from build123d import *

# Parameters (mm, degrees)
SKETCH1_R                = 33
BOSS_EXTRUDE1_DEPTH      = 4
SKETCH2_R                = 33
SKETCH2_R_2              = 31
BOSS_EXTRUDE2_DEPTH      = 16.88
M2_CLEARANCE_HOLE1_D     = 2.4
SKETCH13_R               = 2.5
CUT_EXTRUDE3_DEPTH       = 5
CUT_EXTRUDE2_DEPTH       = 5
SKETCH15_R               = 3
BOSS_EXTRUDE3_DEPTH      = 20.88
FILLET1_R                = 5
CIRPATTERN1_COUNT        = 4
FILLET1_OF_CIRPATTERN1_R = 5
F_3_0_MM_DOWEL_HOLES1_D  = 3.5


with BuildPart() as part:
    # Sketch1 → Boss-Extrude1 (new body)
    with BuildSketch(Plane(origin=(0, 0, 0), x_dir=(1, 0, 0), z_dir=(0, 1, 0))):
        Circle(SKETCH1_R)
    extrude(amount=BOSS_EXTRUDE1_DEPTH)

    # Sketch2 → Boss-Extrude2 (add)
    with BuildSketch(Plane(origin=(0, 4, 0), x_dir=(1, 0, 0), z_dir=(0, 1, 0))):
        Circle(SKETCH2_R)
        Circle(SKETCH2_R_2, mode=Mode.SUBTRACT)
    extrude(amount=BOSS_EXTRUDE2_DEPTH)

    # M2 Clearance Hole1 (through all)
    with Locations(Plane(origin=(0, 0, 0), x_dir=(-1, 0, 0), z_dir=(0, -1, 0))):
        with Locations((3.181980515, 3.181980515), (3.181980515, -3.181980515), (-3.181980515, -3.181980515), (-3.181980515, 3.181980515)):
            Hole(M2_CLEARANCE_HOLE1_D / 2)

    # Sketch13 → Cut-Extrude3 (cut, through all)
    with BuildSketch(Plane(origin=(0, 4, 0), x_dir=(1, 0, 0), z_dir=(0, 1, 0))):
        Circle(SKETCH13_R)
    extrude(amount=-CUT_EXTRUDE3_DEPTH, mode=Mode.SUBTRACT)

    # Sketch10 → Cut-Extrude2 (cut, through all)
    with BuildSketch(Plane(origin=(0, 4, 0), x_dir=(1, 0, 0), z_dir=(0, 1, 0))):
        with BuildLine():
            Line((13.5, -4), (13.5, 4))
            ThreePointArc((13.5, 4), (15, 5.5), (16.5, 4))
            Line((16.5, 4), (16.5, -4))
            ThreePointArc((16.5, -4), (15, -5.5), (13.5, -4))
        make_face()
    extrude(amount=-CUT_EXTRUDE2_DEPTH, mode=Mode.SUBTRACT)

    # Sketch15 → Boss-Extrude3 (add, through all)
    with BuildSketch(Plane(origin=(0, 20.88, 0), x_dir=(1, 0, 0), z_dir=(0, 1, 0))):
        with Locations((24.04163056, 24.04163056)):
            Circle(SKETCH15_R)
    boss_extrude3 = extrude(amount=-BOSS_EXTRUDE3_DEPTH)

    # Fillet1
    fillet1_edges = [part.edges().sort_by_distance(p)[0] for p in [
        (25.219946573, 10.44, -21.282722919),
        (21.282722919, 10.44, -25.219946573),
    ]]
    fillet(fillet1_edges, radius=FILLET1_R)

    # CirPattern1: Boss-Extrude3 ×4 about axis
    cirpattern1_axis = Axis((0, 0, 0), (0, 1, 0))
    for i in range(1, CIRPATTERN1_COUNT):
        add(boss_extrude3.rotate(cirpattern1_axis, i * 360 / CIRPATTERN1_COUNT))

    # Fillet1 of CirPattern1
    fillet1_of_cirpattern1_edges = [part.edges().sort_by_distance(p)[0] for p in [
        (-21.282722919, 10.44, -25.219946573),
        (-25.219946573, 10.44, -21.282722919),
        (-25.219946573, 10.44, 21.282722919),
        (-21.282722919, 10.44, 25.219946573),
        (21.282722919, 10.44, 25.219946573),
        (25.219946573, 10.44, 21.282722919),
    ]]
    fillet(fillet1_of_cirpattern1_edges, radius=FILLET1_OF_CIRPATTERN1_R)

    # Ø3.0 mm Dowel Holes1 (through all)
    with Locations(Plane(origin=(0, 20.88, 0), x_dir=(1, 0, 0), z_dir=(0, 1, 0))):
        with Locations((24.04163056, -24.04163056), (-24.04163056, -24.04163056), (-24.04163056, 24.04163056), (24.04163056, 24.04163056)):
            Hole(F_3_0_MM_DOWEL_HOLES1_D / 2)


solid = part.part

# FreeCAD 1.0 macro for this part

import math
import FreeCAD as App
import Part
import Sketcher
from FreeCAD import Vector
Q = App.Units.Quantity


def edges_at(feature, points):
    """Names of the edges that pass closest to the given points."""
    edges = feature.Shape.Edges
    near = lambda p: min(range(len(edges)), key=lambda i: edges[i].distToShape(Part.Vertex(*p))[0])
    return sorted({f"Edge{near(p) + 1}" for p in points})

doc = App.newDocument("Part")
params = doc.addObject("Spreadsheet::Sheet", "Params")
for row, (alias, value) in enumerate([
    ("sketch1_diameter", "66 mm"),
    ("pad1_length", "4 mm"),
    ("sketch2_diameter", "66 mm"),
    ("sketch2_diameter2", "62 mm"),
    ("pad2_length", "16.88 mm"),
    ("sketch3_diameter", "2.4 mm"),
    ("hole_diameter", "2.4 mm"),
    ("sketch4_diameter", "5 mm"),
    ("sketch5_radius", "1.5 mm"),
    ("sketch5_height", "8 mm"),
    ("sketch6_diameter", "6 mm"),
    ("pad3_length", "20.88 mm"),
    ("fillet_radius", "5 mm"),
    ("fillet2_radius", "5 mm"),
    ("sketch7_diameter", "3.5 mm"),
    ("hole2_diameter", "3.5 mm"),
], start=1):
    params.set(f"A{row}", alias)
    params.set(f"B{row}", "=" + value)
    params.setAlias(f"B{row}", alias)

body = doc.addObject("PartDesign::Body", "Body")

sketch1 = body.newObject("Sketcher::SketchObject", "Sketch")
sketch1.AttachmentSupport = (doc.getObject("XZ_Plane"), [""])
sketch1.MapMode = "FlatFace"
sketch1.addGeometry(Part.Circle(Vector(0, 0, 0), Vector(0, 0, 1), 33), False)
sketch1.addConstraint(Sketcher.Constraint("Coincident", 0, 3, -1, 1))
sketch1.addConstraint(Sketcher.Constraint("Diameter", 0, Q("66 mm")))
sketch1.setExpression("Constraints[1]", "Params.sketch1_diameter")
pad1 = body.newObject("PartDesign::Pad", "Pad")
pad1.Profile = sketch1
pad1.setExpression("Length", "Params.pad1_length")
pad1.Reversed = True

sketch2 = body.newObject("Sketcher::SketchObject", "Sketch001")
sketch2.AttachmentSupport = (doc.getObject("XZ_Plane"), [""])
sketch2.MapMode = "FlatFace"
sketch2.AttachmentOffset = App.Placement(Vector(0, 0, -4), App.Rotation())
sketch2.addGeometry(Part.Circle(Vector(0, 0, 0), Vector(0, 0, 1), 33), False)
sketch2.addGeometry(Part.Circle(Vector(0, 0, 0), Vector(0, 0, 1), 31), False)
sketch2.addConstraint(Sketcher.Constraint("Coincident", 0, 3, -1, 1))
sketch2.addConstraint(Sketcher.Constraint("Coincident", 1, 3, -1, 1))
sketch2.addConstraint(Sketcher.Constraint("Diameter", 0, Q("66 mm")))
sketch2.addConstraint(Sketcher.Constraint("Diameter", 1, Q("62 mm")))
sketch2.setExpression("Constraints[2]", "Params.sketch2_diameter")
sketch2.setExpression("Constraints[3]", "Params.sketch2_diameter2")
pad2 = body.newObject("PartDesign::Pad", "Pad001")
pad2.Profile = sketch2
pad2.setExpression("Length", "Params.pad2_length")
pad2.Reversed = True

sketch3 = body.newObject("Sketcher::SketchObject", "Sketch002")
sketch3.AttachmentSupport = (doc.getObject("XZ_Plane"), [""])
sketch3.MapMode = "FlatFace"
sketch3.addGeometry(Part.Circle(Vector(-3.2, -3.2, 0), Vector(0, 0, 1), 1.2), False)
sketch3.addGeometry(Part.Circle(Vector(-3.2, 3.2, 0), Vector(0, 0, 1), 1.2), False)
sketch3.addGeometry(Part.Circle(Vector(3.2, 3.2, 0), Vector(0, 0, 1), 1.2), False)
sketch3.addGeometry(Part.Circle(Vector(3.2, -3.2, 0), Vector(0, 0, 1), 1.2), False)
sketch3.addConstraint(Sketcher.Constraint("Equal", 0, 1))
sketch3.addConstraint(Sketcher.Constraint("Equal", 1, 2))
sketch3.addConstraint(Sketcher.Constraint("Equal", 2, 3))
sketch3.addConstraint(Sketcher.Constraint("Symmetric", 0, 3, 2, 3, -1, 1))
sketch3.addConstraint(Sketcher.Constraint("Symmetric", 1, 3, 3, 3, -1, 1))
sketch3.addConstraint(Sketcher.Constraint("Symmetric", 1, 3, 2, 3, -2))
sketch3.addConstraint(Sketcher.Constraint("Diameter", 0, Q("2.4 mm")))
sketch3.addConstraint(Sketcher.Constraint("DistanceX", 0, 3, -1, 1, Q("3.181981 mm")))
sketch3.addConstraint(Sketcher.Constraint("DistanceY", 0, 3, -1, 1, Q("3.181981 mm")))
sketch3.setExpression("Constraints[6]", "Params.sketch3_diameter")
doc.recompute()
hole = body.newObject("PartDesign::Hole", "Hole")
hole.Profile = sketch3
hole.ThreadType = "None"
hole.setExpression("Diameter", "Params.hole_diameter")
hole.DepthType = "ThroughAll"

sketch4 = body.newObject("Sketcher::SketchObject", "Sketch003")
sketch4.AttachmentSupport = (doc.getObject("XZ_Plane"), [""])
sketch4.MapMode = "FlatFace"
sketch4.AttachmentOffset = App.Placement(Vector(0, 0, -4), App.Rotation())
sketch4.addGeometry(Part.Circle(Vector(0, 0, 0), Vector(0, 0, 1), 2.5), False)
sketch4.addConstraint(Sketcher.Constraint("Coincident", 0, 3, -1, 1))
sketch4.addConstraint(Sketcher.Constraint("Diameter", 0, Q("5 mm")))
sketch4.setExpression("Constraints[1]", "Params.sketch4_diameter")
pocket1 = body.newObject("PartDesign::Pocket", "Pocket")
pocket1.Profile = sketch4
pocket1.Type = "ThroughAll"
pocket1.Reversed = True

sketch5 = body.newObject("Sketcher::SketchObject", "Sketch004")
sketch5.AttachmentSupport = (doc.getObject("XZ_Plane"), [""])
sketch5.MapMode = "FlatFace"
sketch5.AttachmentOffset = App.Placement(Vector(0, 0, -4), App.Rotation())
sketch5.addGeometry(Part.LineSegment(Vector(13.5, -4, 0), Vector(13.5, 4, 0)), False)
sketch5.addGeometry(Part.ArcOfCircle(Part.Circle(Vector(15, 4, 0), Vector(0, 0, 1), 1.5), math.radians(0), math.radians(180)), False)
sketch5.addGeometry(Part.LineSegment(Vector(16.5, 4, 0), Vector(16.5, -4, 0)), False)
sketch5.addGeometry(Part.ArcOfCircle(Part.Circle(Vector(15, -4, 0), Vector(0, 0, 1), 1.5), math.radians(180), math.radians(360)), False)
sketch5.addConstraint(Sketcher.Constraint("Tangent", 0, 2, 1, 2))
sketch5.addConstraint(Sketcher.Constraint("Tangent", 1, 1, 2, 1))
sketch5.addConstraint(Sketcher.Constraint("Tangent", 2, 2, 3, 2))
sketch5.addConstraint(Sketcher.Constraint("Tangent", 3, 1, 0, 1))
sketch5.addConstraint(Sketcher.Constraint("Vertical", 0))
sketch5.addConstraint(Sketcher.Constraint("Vertical", 2))
sketch5.addConstraint(Sketcher.Constraint("Radius", 1, Q("1.5 mm")))
sketch5.addConstraint(Sketcher.Constraint("DistanceY", 0, 1, 0, 2, Q("8 mm")))
sketch5.addConstraint(Sketcher.Constraint("DistanceX", -1, 1, 1, 3, Q("15 mm")))
sketch5.addConstraint(Sketcher.Constraint("DistanceY", -1, 1, 1, 3, Q("4 mm")))
sketch5.setExpression("Constraints[6]", "Params.sketch5_radius")
sketch5.setExpression("Constraints[7]", "Params.sketch5_height")
pocket2 = body.newObject("PartDesign::Pocket", "Pocket001")
pocket2.Profile = sketch5
pocket2.Type = "ThroughAll"
pocket2.Reversed = True

sketch6 = body.newObject("Sketcher::SketchObject", "Sketch005")
sketch6.AttachmentSupport = (doc.getObject("XZ_Plane"), [""])
sketch6.MapMode = "FlatFace"
sketch6.AttachmentOffset = App.Placement(Vector(0, 0, -20.88), App.Rotation())
sketch6.addGeometry(Part.Circle(Vector(24, -24, 0), Vector(0, 0, 1), 3), False)
sketch6.addConstraint(Sketcher.Constraint("Diameter", 0, Q("6 mm")))
sketch6.addConstraint(Sketcher.Constraint("DistanceX", -1, 1, 0, 3, Q("24.041631 mm")))
sketch6.addConstraint(Sketcher.Constraint("DistanceY", 0, 3, -1, 1, Q("24.041631 mm")))
sketch6.setExpression("Constraints[0]", "Params.sketch6_diameter")
pad3 = body.newObject("PartDesign::Pad", "Pad002")
pad3.Profile = sketch6
pad3.setExpression("Length", "Params.pad3_length")
doc.recompute()

fillet = body.newObject("PartDesign::Fillet", "Fillet")
fillet.Base = (pad3, edges_at(pad3, [(25.22, 10.44, -21.283), (21.283, 10.44, -25.22)]))
fillet.setExpression("Radius", "Params.fillet_radius")
doc.recompute()

polarpattern = body.newObject("PartDesign::PolarPattern", "PolarPattern")
polarpattern.Originals = [pad3]
polarpattern.Axis = (doc.getObject("Y_Axis"), [""])
polarpattern.Angle = 360
polarpattern.Occurrences = 4
body.Tip = polarpattern
doc.recompute()

fillet2 = body.newObject("PartDesign::Fillet", "Fillet001")
fillet2.Base = (polarpattern, edges_at(polarpattern, [
    (-21.283, 10.44, -25.22),
    (-25.22, 10.44, -21.283),
    (-25.22, 10.44, 21.283),
    (-21.283, 10.44, 25.22),
    (21.283, 10.44, 25.22),
    (25.22, 10.44, 21.283),
]))
fillet2.setExpression("Radius", "Params.fillet2_radius")

sketch7 = body.newObject("Sketcher::SketchObject", "Sketch006")
sketch7.AttachmentSupport = (doc.getObject("XZ_Plane"), [""])
sketch7.MapMode = "FlatFace"
sketch7.AttachmentOffset = App.Placement(Vector(0, 0, -20.88), App.Rotation())
sketch7.addGeometry(Part.Circle(Vector(24, 24, 0), Vector(0, 0, 1), 1.8), False)
sketch7.addGeometry(Part.Circle(Vector(-24, 24, 0), Vector(0, 0, 1), 1.8), False)
sketch7.addGeometry(Part.Circle(Vector(-24, -24, 0), Vector(0, 0, 1), 1.8), False)
sketch7.addGeometry(Part.Circle(Vector(24, -24, 0), Vector(0, 0, 1), 1.8), False)
sketch7.addConstraint(Sketcher.Constraint("Equal", 0, 1))
sketch7.addConstraint(Sketcher.Constraint("Equal", 1, 2))
sketch7.addConstraint(Sketcher.Constraint("Equal", 2, 3))
sketch7.addConstraint(Sketcher.Constraint("Symmetric", 0, 3, 2, 3, -1, 1))
sketch7.addConstraint(Sketcher.Constraint("Symmetric", 1, 3, 3, 3, -1, 1))
sketch7.addConstraint(Sketcher.Constraint("Symmetric", 0, 3, 1, 3, -2))
sketch7.addConstraint(Sketcher.Constraint("Diameter", 0, Q("3.5 mm")))
sketch7.addConstraint(Sketcher.Constraint("DistanceX", -1, 1, 0, 3, Q("24.041631 mm")))
sketch7.addConstraint(Sketcher.Constraint("DistanceY", -1, 1, 0, 3, Q("24.041631 mm")))
sketch7.setExpression("Constraints[6]", "Params.sketch7_diameter")
doc.recompute()
hole2 = body.newObject("PartDesign::Hole", "Hole001")
hole2.Profile = sketch7
hole2.ThreadType = "None"
hole2.setExpression("Diameter", "Params.hole2_diameter")
hole2.DepthType = "ThroughAll"
hole2.Reversed = True

doc.recompute()
